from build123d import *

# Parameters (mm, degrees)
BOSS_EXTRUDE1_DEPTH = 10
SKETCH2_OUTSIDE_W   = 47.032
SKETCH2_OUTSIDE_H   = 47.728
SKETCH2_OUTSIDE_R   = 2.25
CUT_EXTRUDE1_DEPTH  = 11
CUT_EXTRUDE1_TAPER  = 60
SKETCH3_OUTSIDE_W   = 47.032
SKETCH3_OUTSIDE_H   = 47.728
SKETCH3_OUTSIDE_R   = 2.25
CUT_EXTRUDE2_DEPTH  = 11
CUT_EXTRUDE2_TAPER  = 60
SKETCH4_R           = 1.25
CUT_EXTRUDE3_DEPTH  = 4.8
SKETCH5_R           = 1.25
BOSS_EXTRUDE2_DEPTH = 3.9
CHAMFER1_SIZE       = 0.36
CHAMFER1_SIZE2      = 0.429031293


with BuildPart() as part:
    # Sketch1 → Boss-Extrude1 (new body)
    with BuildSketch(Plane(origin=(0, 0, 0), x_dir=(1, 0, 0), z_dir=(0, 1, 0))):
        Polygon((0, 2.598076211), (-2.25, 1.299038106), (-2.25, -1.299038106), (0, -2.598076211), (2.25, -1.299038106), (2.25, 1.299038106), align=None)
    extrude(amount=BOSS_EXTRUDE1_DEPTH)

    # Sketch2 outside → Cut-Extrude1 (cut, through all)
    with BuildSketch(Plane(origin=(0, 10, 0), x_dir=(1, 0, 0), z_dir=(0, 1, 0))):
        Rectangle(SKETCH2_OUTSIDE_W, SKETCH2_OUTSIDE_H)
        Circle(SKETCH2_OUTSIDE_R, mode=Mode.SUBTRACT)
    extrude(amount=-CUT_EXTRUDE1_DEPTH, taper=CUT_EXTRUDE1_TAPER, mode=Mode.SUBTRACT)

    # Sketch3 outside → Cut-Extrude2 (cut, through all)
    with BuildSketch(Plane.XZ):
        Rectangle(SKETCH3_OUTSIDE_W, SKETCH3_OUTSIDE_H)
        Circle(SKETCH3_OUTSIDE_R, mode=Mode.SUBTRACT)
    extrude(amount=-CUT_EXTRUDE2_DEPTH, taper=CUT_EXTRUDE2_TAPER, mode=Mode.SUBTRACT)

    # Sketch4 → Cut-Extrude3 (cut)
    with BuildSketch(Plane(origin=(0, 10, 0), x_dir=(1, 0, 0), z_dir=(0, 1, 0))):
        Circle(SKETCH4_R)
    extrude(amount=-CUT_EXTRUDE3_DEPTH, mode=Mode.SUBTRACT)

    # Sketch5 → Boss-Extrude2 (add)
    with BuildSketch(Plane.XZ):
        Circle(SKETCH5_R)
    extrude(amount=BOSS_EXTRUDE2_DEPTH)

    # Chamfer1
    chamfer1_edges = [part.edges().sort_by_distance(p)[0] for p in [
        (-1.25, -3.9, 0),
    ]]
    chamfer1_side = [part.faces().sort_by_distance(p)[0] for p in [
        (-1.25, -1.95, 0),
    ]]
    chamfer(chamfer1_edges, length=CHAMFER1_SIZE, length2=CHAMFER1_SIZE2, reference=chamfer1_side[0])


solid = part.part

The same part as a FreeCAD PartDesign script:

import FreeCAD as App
import Part
import Sketcher
from FreeCAD import Vector
Q = App.Units.Quantity


def edges_at(feature, points):
    """Names of the edges that pass closest to the given points."""
    edges = feature.Shape.Edges
    near = lambda p: min(range(len(edges)), key=lambda i: edges[i].distToShape(Part.Vertex(*p))[0])
    return sorted({f"Edge{near(p) + 1}" for p in points})

doc = App.newDocument("Part")
body = doc.addObject("PartDesign::Body", "Body")

sketch1 = doc.addObject("Sketcher::SketchObject", "Sketch")
body.addObject(sketch1)
sketch1.AttachmentSupport = (doc.XZ_Plane, [""])
sketch1.MapMode = "FlatFace"
sketch1.addGeometry([
    Part.LineSegment(Vector(0, -2.6, 0), Vector(-2.2, -1.3, 0)),
    Part.LineSegment(Vector(-2.2, -1.3, 0), Vector(-2.2, 1.3, 0)),
    Part.LineSegment(Vector(-2.2, 1.3, 0), Vector(0, 2.6, 0)),
    Part.LineSegment(Vector(0, 2.6, 0), Vector(2.2, 1.3, 0)),
    Part.LineSegment(Vector(2.2, 1.3, 0), Vector(2.2, -1.3, 0)),
    Part.LineSegment(Vector(2.2, -1.3, 0), Vector(0, -2.6, 0)),
], False)
sketch1.addConstraint([
    Sketcher.Constraint("Coincident", 0, 2, 1, 1),
    Sketcher.Constraint("Coincident", 1, 2, 2, 1),
    Sketcher.Constraint("Coincident", 2, 2, 3, 1),
    Sketcher.Constraint("Coincident", 3, 2, 4, 1),
    Sketcher.Constraint("Coincident", 4, 2, 5, 1),
    Sketcher.Constraint("Coincident", 5, 2, 0, 1),
    Sketcher.Constraint("Vertical", 1),
    Sketcher.Constraint("Vertical", 4),
    Sketcher.Constraint("Symmetric", 0, 2, 3, 2, -1, 1),
    Sketcher.Constraint("Symmetric", 2, 2, 5, 2, -1, 1),
    Sketcher.Constraint("PointOnObject", 2, 2, -2),
    Sketcher.Constraint("Parallel", 2, 5),
    Sketcher.Constraint("Horizontal", 1, 2, 3, 2),
    Sketcher.Constraint("Angle", 0, Q("150 deg")),
    Sketcher.Constraint("DistanceX", 1, 2, 3, 2, Q("4.5 mm")),
    Sketcher.Constraint("DistanceY", 1, 1, 1, 2, Q("2.598076 mm")),
])
pad1 = doc.addObject("PartDesign::Pad", "Pad")
body.addObject(pad1)
pad1.Profile = sketch1
pad1.Length = 10
pad1.Reversed = True

sketch2 = doc.addObject("Sketcher::SketchObject", "Sketch001")
body.addObject(sketch2)
sketch2.AttachmentSupport = (doc.XZ_Plane, [""])
sketch2.MapMode = "FlatFace"
sketch2.AttachmentOffset = App.Placement(Vector(0, 0, -10), App.Rotation())
sketch2.addGeometry([
    Part.LineSegment(Vector(-23.5, -23.9, 0), Vector(-23.5, 23.9, 0)),
    Part.LineSegment(Vector(-23.5, 23.9, 0), Vector(23.5, 23.9, 0)),
    Part.LineSegment(Vector(23.5, 23.9, 0), Vector(23.5, -23.9, 0)),
    Part.LineSegment(Vector(23.5, -23.9, 0), Vector(-23.5, -23.9, 0)),
    Part.Circle(Vector(0, 0, 0), Vector(0, 0, 1), 2.2),
], False)
sketch2.addConstraint([
    Sketcher.Constraint("Coincident", 0, 2, 1, 1),
    Sketcher.Constraint("Coincident", 1, 2, 2, 1),
    Sketcher.Constraint("Coincident", 2, 2, 3, 1),
    Sketcher.Constraint("Coincident", 3, 2, 0, 1),
    Sketcher.Constraint("Vertical", 0),
    Sketcher.Constraint("Horizontal", 1),
    Sketcher.Constraint("Vertical", 2),
    Sketcher.Constraint("Horizontal", 3),
    Sketcher.Constraint("Coincident", 4, 3, -1, 1),
    Sketcher.Constraint("Symmetric", 0, 2, 2, 2, -1, 1),
    Sketcher.Constraint("Diameter", 4, Q("4.5 mm")),
    Sketcher.Constraint("DistanceX", 1, 1, 1, 2, Q("47.032 mm")),
    Sketcher.Constraint("DistanceY", 0, 1, 0, 2, Q("47.728 mm")),
])
pocket1 = doc.addObject("PartDesign::Pocket", "Pocket")
body.addObject(pocket1)
pocket1.Profile = sketch2
pocket1.Length = 11
pocket1.Reversed = True
pocket1.TaperAngle = 60

sketch3 = doc.addObject("Sketcher::SketchObject", "Sketch002")
body.addObject(sketch3)
sketch3.AttachmentSupport = (doc.XZ_Plane, [""])
sketch3.MapMode = "FlatFace"
sketch3.addGeometry([
    Part.LineSegment(Vector(-23.5, 23.9, 0), Vector(-23.5, -23.9, 0)),
    Part.LineSegment(Vector(-23.5, -23.9, 0), Vector(23.5, -23.9, 0)),
    Part.LineSegment(Vector(23.5, -23.9, 0), Vector(23.5, 23.9, 0)),
    Part.LineSegment(Vector(23.5, 23.9, 0), Vector(-23.5, 23.9, 0)),
    Part.Circle(Vector(0, 0, 0), Vector(0, 0, 1), 2.2),
], False)
sketch3.addConstraint([
    Sketcher.Constraint("Coincident", 0, 2, 1, 1),
    Sketcher.Constraint("Coincident", 1, 2, 2, 1),
    Sketcher.Constraint("Coincident", 2, 2, 3, 1),
    Sketcher.Constraint("Coincident", 3, 2, 0, 1),
    Sketcher.Constraint("Vertical", 0),
    Sketcher.Constraint("Horizontal", 1),
    Sketcher.Constraint("Vertical", 2),
    Sketcher.Constraint("Horizontal", 3),
    Sketcher.Constraint("Coincident", 4, 3, -1, 1),
    Sketcher.Constraint("Symmetric", 0, 2, 2, 2, -1, 1),
    Sketcher.Constraint("Diameter", 4, Q("4.5 mm")),
    Sketcher.Constraint("DistanceX", 1, 1, 1, 2, Q("47.032 mm")),
    Sketcher.Constraint("DistanceY", 0, 2, 0, 1, Q("47.728 mm")),
])
pocket2 = doc.addObject("PartDesign::Pocket", "Pocket001")
body.addObject(pocket2)
pocket2.Profile = sketch3
pocket2.Length = 11
pocket2.TaperAngle = 60

sketch4 = doc.addObject("Sketcher::SketchObject", "Sketch003")
body.addObject(sketch4)
sketch4.AttachmentSupport = (doc.XZ_Plane, [""])
sketch4.MapMode = "FlatFace"
sketch4.AttachmentOffset = App.Placement(Vector(0, 0, -10), App.Rotation())
sketch4.addGeometry(Part.Circle(Vector(0, 0, 0), Vector(0, 0, 1), 1.2), False)
sketch4.addConstraint([
    Sketcher.Constraint("Coincident", 0, 3, -1, 1),
    Sketcher.Constraint("Diameter", 0, Q("2.5 mm")),
])
pocket3 = doc.addObject("PartDesign::Pocket", "Pocket002")
body.addObject(pocket3)
pocket3.Profile = sketch4
pocket3.Length = 4.8
pocket3.Reversed = True

sketch5 = doc.addObject("Sketcher::SketchObject", "Sketch004")
body.addObject(sketch5)
sketch5.AttachmentSupport = (doc.XZ_Plane, [""])
sketch5.MapMode = "FlatFace"
sketch5.addGeometry(Part.Circle(Vector(0, 0, 0), Vector(0, 0, 1), 1.2), False)
sketch5.addConstraint([
    Sketcher.Constraint("Coincident", 0, 3, -1, 1),
    Sketcher.Constraint("Diameter", 0, Q("2.5 mm")),
])
pad2 = doc.addObject("PartDesign::Pad", "Pad001")
body.addObject(pad2)
pad2.Profile = sketch5
pad2.Length = 3.9
doc.recompute()

chamfer = doc.addObject("PartDesign::Chamfer", "Chamfer")
body.addObject(chamfer)
chamfer.Base = (pad2, edges_at(pad2, [(-1.25, -3.9, 0)]))
chamfer.ChamferType = "Two distances"
chamfer.Size = 0.36
chamfer.Size2 = 0.429031

doc.recompute()
